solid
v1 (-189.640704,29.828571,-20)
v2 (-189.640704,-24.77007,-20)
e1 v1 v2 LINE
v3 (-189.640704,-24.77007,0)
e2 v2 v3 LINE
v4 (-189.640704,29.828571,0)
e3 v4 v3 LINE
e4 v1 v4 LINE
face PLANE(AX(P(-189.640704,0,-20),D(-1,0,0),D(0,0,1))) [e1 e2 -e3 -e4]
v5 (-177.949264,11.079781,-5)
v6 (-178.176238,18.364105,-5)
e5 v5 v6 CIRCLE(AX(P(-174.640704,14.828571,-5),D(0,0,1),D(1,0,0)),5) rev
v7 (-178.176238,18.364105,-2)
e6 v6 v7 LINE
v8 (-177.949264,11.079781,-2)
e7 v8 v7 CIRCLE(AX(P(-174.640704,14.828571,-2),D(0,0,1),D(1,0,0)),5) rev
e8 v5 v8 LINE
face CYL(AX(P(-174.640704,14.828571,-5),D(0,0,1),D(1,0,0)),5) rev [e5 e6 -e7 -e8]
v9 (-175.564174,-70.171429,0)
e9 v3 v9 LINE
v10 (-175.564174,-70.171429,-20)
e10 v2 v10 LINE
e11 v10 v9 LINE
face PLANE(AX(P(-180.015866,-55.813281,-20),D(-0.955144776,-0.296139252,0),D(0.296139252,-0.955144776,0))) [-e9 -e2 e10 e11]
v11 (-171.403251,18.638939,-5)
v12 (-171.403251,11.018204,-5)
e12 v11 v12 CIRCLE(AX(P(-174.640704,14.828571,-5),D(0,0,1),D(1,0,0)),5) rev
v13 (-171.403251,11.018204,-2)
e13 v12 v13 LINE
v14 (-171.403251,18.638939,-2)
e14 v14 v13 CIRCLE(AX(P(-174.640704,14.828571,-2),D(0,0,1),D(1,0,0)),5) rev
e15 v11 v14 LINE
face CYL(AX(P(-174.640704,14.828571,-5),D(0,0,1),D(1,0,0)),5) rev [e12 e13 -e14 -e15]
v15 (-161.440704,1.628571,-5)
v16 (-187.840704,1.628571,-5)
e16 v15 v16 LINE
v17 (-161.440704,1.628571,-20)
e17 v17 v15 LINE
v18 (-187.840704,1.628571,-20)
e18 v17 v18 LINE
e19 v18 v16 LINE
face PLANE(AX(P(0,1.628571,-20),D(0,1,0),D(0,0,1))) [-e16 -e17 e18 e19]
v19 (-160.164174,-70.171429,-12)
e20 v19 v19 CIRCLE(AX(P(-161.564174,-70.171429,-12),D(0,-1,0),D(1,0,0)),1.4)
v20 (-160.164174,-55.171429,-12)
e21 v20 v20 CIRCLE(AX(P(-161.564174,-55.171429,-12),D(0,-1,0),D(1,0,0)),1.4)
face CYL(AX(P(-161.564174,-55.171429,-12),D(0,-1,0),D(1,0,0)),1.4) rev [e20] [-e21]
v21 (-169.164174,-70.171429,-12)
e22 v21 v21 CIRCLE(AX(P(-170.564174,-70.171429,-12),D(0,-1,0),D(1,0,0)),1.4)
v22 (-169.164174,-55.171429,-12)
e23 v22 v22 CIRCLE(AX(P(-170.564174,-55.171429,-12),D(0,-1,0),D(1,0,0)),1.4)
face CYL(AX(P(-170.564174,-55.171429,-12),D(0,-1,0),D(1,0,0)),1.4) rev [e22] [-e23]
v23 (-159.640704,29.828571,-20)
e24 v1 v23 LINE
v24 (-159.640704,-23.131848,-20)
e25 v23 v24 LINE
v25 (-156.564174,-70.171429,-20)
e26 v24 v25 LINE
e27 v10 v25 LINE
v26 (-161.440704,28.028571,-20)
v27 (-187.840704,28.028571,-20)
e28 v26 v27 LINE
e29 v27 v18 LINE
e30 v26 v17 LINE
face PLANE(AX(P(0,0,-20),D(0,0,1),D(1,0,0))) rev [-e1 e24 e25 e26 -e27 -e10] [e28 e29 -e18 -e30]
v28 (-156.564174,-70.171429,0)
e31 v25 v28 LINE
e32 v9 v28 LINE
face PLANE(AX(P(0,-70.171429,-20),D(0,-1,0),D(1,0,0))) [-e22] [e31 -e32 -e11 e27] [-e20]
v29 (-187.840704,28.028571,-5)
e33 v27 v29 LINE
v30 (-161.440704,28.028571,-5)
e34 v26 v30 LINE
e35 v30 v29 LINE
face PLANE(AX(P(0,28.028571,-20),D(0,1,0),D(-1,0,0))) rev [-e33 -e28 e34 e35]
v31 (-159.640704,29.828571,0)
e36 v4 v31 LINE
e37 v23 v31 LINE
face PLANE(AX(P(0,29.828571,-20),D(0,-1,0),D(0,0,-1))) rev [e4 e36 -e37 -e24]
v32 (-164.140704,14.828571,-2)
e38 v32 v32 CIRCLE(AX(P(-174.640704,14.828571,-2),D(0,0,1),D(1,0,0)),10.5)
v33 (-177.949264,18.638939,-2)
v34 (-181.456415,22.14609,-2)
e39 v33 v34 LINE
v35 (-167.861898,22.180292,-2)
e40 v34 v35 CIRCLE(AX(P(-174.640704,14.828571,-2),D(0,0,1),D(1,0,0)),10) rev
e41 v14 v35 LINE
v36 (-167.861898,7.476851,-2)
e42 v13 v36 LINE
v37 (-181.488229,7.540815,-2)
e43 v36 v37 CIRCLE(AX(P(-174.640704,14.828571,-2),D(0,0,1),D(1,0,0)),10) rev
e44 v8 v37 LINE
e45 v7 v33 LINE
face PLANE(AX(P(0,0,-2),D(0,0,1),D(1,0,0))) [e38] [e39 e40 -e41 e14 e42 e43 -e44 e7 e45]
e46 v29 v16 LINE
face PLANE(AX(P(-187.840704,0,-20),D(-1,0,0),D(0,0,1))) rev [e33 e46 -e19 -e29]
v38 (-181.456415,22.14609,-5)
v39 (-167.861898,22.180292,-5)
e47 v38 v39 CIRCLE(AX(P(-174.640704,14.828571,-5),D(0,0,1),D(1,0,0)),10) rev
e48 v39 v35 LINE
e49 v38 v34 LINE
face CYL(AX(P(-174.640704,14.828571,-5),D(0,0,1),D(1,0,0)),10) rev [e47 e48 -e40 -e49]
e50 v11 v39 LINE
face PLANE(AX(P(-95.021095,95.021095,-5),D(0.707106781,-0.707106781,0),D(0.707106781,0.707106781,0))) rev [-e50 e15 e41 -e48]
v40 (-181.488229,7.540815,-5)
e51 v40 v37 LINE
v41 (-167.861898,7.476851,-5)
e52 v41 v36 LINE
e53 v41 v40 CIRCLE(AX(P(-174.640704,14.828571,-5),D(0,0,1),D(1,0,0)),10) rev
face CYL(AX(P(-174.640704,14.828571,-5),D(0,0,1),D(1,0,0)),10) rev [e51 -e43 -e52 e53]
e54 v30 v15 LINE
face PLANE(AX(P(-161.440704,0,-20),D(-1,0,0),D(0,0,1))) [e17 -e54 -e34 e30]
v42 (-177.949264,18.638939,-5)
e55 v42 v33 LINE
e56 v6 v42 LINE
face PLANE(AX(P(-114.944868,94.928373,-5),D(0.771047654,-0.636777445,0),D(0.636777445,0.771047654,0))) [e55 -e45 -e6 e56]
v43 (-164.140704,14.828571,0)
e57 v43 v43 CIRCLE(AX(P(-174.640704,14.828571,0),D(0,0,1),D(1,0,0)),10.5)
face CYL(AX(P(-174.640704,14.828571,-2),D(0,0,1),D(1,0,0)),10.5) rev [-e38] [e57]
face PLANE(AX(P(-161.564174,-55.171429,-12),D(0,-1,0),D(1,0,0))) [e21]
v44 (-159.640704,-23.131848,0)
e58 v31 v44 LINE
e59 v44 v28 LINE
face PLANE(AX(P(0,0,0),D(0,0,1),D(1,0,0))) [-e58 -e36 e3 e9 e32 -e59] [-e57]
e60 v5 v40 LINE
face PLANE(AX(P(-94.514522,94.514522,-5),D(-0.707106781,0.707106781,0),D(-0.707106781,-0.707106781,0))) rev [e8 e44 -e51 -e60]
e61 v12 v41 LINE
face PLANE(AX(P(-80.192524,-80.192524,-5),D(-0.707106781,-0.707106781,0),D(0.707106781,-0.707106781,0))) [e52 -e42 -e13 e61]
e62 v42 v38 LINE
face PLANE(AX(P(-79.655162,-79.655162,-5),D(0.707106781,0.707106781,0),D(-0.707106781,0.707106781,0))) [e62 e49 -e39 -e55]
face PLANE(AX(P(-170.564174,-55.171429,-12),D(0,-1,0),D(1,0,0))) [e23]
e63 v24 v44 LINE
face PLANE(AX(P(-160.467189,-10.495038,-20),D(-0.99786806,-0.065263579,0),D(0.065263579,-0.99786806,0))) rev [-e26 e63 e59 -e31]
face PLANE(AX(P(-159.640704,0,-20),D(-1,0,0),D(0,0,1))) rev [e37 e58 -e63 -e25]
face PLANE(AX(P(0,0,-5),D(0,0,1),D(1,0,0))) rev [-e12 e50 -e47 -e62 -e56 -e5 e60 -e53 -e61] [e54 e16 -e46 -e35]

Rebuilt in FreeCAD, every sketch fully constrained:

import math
import FreeCAD as App
import Part
import Sketcher

doc = App.newDocument("Part")
body = doc.addObject("PartDesign::Body", "Body")

sketch1 = body.newObject("Sketcher::SketchObject", "Sketch")
sketch1.AttachmentSupport = (doc.getObject("XY_Plane"), [""])
sketch1.MapMode = "FlatFace"
sketch1.addGeometry([
    Part.LineSegment(App.Vector(-190, -25, 0), App.Vector(-176, -70, 0)),
    Part.LineSegment(App.Vector(-176, -70, 0), App.Vector(-157, -70, 0)),
    Part.LineSegment(App.Vector(-157, -70, 0), App.Vector(-160, -23, 0)),
    Part.LineSegment(App.Vector(-160, -23, 0), App.Vector(-160, 30, 0)),
    Part.LineSegment(App.Vector(-160, 30, 0), App.Vector(-190, 30, 0)),
    Part.LineSegment(App.Vector(-190, 30, 0), App.Vector(-190, -25, 0)),
    Part.LineSegment(App.Vector(-188, 2, 0), App.Vector(-188, 28, 0)),
    Part.LineSegment(App.Vector(-188, 28, 0), App.Vector(-161, 28, 0)),
    Part.LineSegment(App.Vector(-161, 28, 0), App.Vector(-161, 2, 0)),
    Part.LineSegment(App.Vector(-161, 2, 0), App.Vector(-188, 2, 0)),
], False)
sketch1.addConstraint([
    Sketcher.Constraint("Coincident", 0, 2, 1, 1),
    Sketcher.Constraint("Coincident", 1, 2, 2, 1),
    Sketcher.Constraint("Coincident", 2, 2, 3, 1),
    Sketcher.Constraint("Coincident", 3, 2, 4, 1),
    Sketcher.Constraint("Coincident", 4, 2, 5, 1),
    Sketcher.Constraint("Coincident", 5, 2, 0, 1),
    Sketcher.Constraint("Coincident", 6, 2, 7, 1),
    Sketcher.Constraint("Coincident", 7, 2, 8, 1),
    Sketcher.Constraint("Coincident", 8, 2, 9, 1),
    Sketcher.Constraint("Coincident", 9, 2, 6, 1),
    Sketcher.Constraint("Horizontal", 1),
    Sketcher.Constraint("Vertical", 3),
    Sketcher.Constraint("Horizontal", 4),
    Sketcher.Constraint("Vertical", 5),
    Sketcher.Constraint("Vertical", 6),
    Sketcher.Constraint("Horizontal", 7),
    Sketcher.Constraint("Vertical", 8),
    Sketcher.Constraint("Horizontal", 9),
    Sketcher.Constraint("Equal", 9, 6),
    Sketcher.Constraint("DistanceX", 1, 1, 1, 2, 19.0),
    Sketcher.Constraint("DistanceX", 4, 2, 4, 1, 30.0),
    Sketcher.Constraint("DistanceX", 7, 1, 7, 2, 26.4),
    Sketcher.Constraint("DistanceY", 1, 2, 3, 2, 100.0),
    Sketcher.Constraint("DistanceX", 4, 2, 6, 2, 1.8),
    Sketcher.Constraint("DistanceY", 6, 2, 4, 2, 1.8),
    Sketcher.Constraint("DistanceY", 3, 1, 3, 2, 52.960419),
    Sketcher.Constraint("DistanceY", 5, 2, 5, 1, 54.598641),
    Sketcher.Constraint("Distance", 2, 47.140081),
    Sketcher.Constraint("DistanceY", 0, 2, -1, 1, 70.171429),
    Sketcher.Constraint("DistanceX", 0, 2, -1, 1, 175.564174),
])
pad1 = body.newObject("PartDesign::Pad", "Pad")
pad1.Profile = sketch1
pad1.Length = 20
pad1.Reversed = True

sketch2 = body.newObject("Sketcher::SketchObject", "Sketch001")
sketch2.AttachmentSupport = (doc.getObject("XY_Plane"), [""])
sketch2.MapMode = "FlatFace"
sketch2.addGeometry([
    Part.LineSegment(App.Vector(-187.84, 28.03, 0), App.Vector(-187.84, 1.63, 0)),
    Part.LineSegment(App.Vector(-187.84, 1.63, 0), App.Vector(-161.44, 1.63, 0)),
    Part.LineSegment(App.Vector(-161.44, 1.63, 0), App.Vector(-161.44, 28.03, 0)),
    Part.LineSegment(App.Vector(-161.44, 28.03, 0), App.Vector(-187.84, 28.03, 0)),
    Part.LineSegment(App.Vector(-171.4, 11.02, 0), App.Vector(-167.86, 7.48, 0)),
    Part.ArcOfCircle(Part.Circle(App.Vector(-174.64, 14.83, 0), App.Vector(0, 0, 1), 10), math.radians(-133), math.radians(-47)),
    Part.LineSegment(App.Vector(-181.49, 7.54, 0), App.Vector(-177.95, 11.08, 0)),
    Part.ArcOfCircle(Part.Circle(App.Vector(-174.64, 14.83, 0), App.Vector(0, 0, 1), 5), math.radians(135), math.radians(229)),
    Part.LineSegment(App.Vector(-178.18, 18.36, 0), App.Vector(-177.95, 18.64, 0)),
    Part.LineSegment(App.Vector(-177.95, 18.64, 0), App.Vector(-181.46, 22.15, 0)),
    Part.ArcOfCircle(Part.Circle(App.Vector(-174.64, 14.83, 0), App.Vector(0, 0, 1), 10), math.radians(47), math.radians(133)),
    Part.LineSegment(App.Vector(-167.86, 22.18, 0), App.Vector(-171.4, 18.64, 0)),
    Part.ArcOfCircle(Part.Circle(App.Vector(-174.64, 14.83, 0), App.Vector(0, 0, 1), 5), math.radians(-50), math.radians(50)),
], False)
sketch2.addConstraint([
    Sketcher.Constraint("Coincident", 0, 2, 1, 1),
    Sketcher.Constraint("Coincident", 1, 2, 2, 1),
    Sketcher.Constraint("Coincident", 2, 2, 3, 1),
    Sketcher.Constraint("Coincident", 3, 2, 0, 1),
    Sketcher.Constraint("Coincident", 4, 2, 5, 2),
    Sketcher.Constraint("Coincident", 5, 1, 6, 1),
    Sketcher.Constraint("Coincident", 6, 2, 7, 2),
    Sketcher.Constraint("Coincident", 7, 1, 8, 1),
    Sketcher.Constraint("Coincident", 8, 2, 9, 1),
    Sketcher.Constraint("Coincident", 9, 2, 10, 2),
    Sketcher.Constraint("Coincident", 10, 1, 11, 1),
    Sketcher.Constraint("Coincident", 11, 2, 12, 2),
    Sketcher.Constraint("Coincident", 12, 1, 4, 1),
    Sketcher.Constraint("Vertical", 0),
    Sketcher.Constraint("Horizontal", 1),
    Sketcher.Constraint("Vertical", 2),
    Sketcher.Constraint("Horizontal", 3),
    Sketcher.Constraint("Coincident", 7, 3, 5, 3),
    Sketcher.Constraint("Coincident", 10, 3, 5, 3),
    Sketcher.Constraint("Coincident", 12, 3, 5, 3),
    Sketcher.Constraint("Equal", 5, 10),
    Sketcher.Constraint("Equal", 7, 12),
    Sketcher.Constraint("Perpendicular", 4, 6),
    Sketcher.Constraint("Perpendicular", 6, 9),
    Sketcher.Constraint("Perpendicular", 9, 11),
    Sketcher.Constraint("Horizontal", 8, 2, 11, 2),
    Sketcher.Constraint("Vertical", 6, 2, 8, 2),
    Sketcher.Constraint("Vertical", 4, 2, 10, 1),
    Sketcher.Constraint("Vertical", 11, 2, 12, 1),
    Sketcher.Constraint("Equal", 3, 0),
    Sketcher.Constraint("Radius", 5, 10.0),
    Sketcher.Constraint("Radius", 7, 5.0),
    Sketcher.Constraint("DistanceX", 1, 1, 1, 2, 26.4),
    Sketcher.Constraint("DistanceX", 0, 2, 10, 3, 13.2),
    Sketcher.Constraint("DistanceY", 0, 2, 10, 3, 13.2),
    Sketcher.Constraint("DistanceX", 4, 2, -1, 1, 167.861898),
    Sketcher.Constraint("Distance", 4, 5.008229),
    Sketcher.Constraint("Distance", 8, 0.356442),
    Sketcher.Constraint("Distance", 9, 4.959861),
    Sketcher.Constraint("DistanceY", -1, 1, 5, 3, 14.828571),
])
pad2 = body.newObject("PartDesign::Pad", "Pad001")
pad2.Profile = sketch2
pad2.Length = 5
pad2.Reversed = True

sketch3 = body.newObject("Sketcher::SketchObject", "Sketch002")
sketch3.AttachmentSupport = (doc.getObject("XY_Plane"), [""])
sketch3.MapMode = "FlatFace"
sketch3.addGeometry([
    Part.Circle(App.Vector(-174.64, 14.83, 0), App.Vector(0, 0, 1), 10.5),
    Part.ArcOfCircle(Part.Circle(App.Vector(-174.64, 14.83, 0), App.Vector(0, 0, 1), 5), math.radians(-50), math.radians(50)),
    Part.LineSegment(App.Vector(-171.4, 11.02, 0), App.Vector(-167.86, 7.48, 0)),
    Part.ArcOfCircle(Part.Circle(App.Vector(-174.64, 14.83, 0), App.Vector(0, 0, 1), 10), math.radians(-133), math.radians(-47)),
    Part.LineSegment(App.Vector(-181.49, 7.54, 0), App.Vector(-177.95, 11.08, 0)),
    Part.ArcOfCircle(Part.Circle(App.Vector(-174.64, 14.83, 0), App.Vector(0, 0, 1), 5), math.radians(135), math.radians(229)),
    Part.LineSegment(App.Vector(-178.18, 18.36, 0), App.Vector(-177.95, 18.64, 0)),
    Part.LineSegment(App.Vector(-177.95, 18.64, 0), App.Vector(-181.46, 22.15, 0)),
    Part.ArcOfCircle(Part.Circle(App.Vector(-174.64, 14.83, 0), App.Vector(0, 0, 1), 10), math.radians(47), math.radians(133)),
    Part.LineSegment(App.Vector(-167.86, 22.18, 0), App.Vector(-171.4, 18.64, 0)),
], False)
sketch3.addConstraint([
    Sketcher.Constraint("Coincident", 1, 1, 2, 1),
    Sketcher.Constraint("Coincident", 2, 2, 3, 2),
    Sketcher.Constraint("Coincident", 3, 1, 4, 1),
    Sketcher.Constraint("Coincident", 4, 2, 5, 2),
    Sketcher.Constraint("Coincident", 5, 1, 6, 1),
    Sketcher.Constraint("Coincident", 6, 2, 7, 1),
    Sketcher.Constraint("Coincident", 7, 2, 8, 2),
    Sketcher.Constraint("Coincident", 8, 1, 9, 1),
    Sketcher.Constraint("Coincident", 9, 2, 1, 2),
    Sketcher.Constraint("Coincident", 1, 3, 0, 3),
    Sketcher.Constraint("Coincident", 3, 3, 0, 3),
    Sketcher.Constraint("Coincident", 5, 3, 0, 3),
    Sketcher.Constraint("Coincident", 8, 3, 0, 3),
    Sketcher.Constraint("Equal", 1, 5),
    Sketcher.Constraint("Equal", 3, 8),
    Sketcher.Constraint("Perpendicular", 2, 4),
    Sketcher.Constraint("Perpendicular", 4, 7),
    Sketcher.Constraint("Perpendicular", 7, 9),
    Sketcher.Constraint("Horizontal", 6, 2, 9, 2),
    Sketcher.Constraint("Vertical", 4, 2, 6, 2),
    Sketcher.Constraint("Vertical", 2, 2, 8, 1),
    Sketcher.Constraint("Vertical", 1, 1, 9, 2),
    Sketcher.Constraint("Diameter", 0, 21.0),
    Sketcher.Constraint("Radius", 1, 5.0),
    Sketcher.Constraint("Radius", 3, 10.0),
    Sketcher.Constraint("DistanceX", 2, 2, -1, 1, 167.861898),
    Sketcher.Constraint("Distance", 2, 5.008229),
    Sketcher.Constraint("Distance", 6, 0.356442),
    Sketcher.Constraint("Distance", 7, 4.959861),
    Sketcher.Constraint("DistanceY", -1, 1, 0, 3, 14.828571),
])
pocket1 = body.newObject("PartDesign::Pocket", "Pocket")
pocket1.Profile = sketch3
pocket1.Length = 2

sketch4 = body.newObject("Sketcher::SketchObject", "Sketch003")
sketch4.AttachmentSupport = (doc.getObject("XZ_Plane"), [""])
sketch4.MapMode = "FlatFace"
sketch4.AttachmentOffset = App.Placement(App.Vector(0, 0, 70.171429), App.Rotation())
sketch4.addGeometry([
    Part.Circle(App.Vector(-161.6, -12, 0), App.Vector(0, 0, 1), 1.4),
    Part.Circle(App.Vector(-170.6, -12, 0), App.Vector(0, 0, 1), 1.4),
], False)
sketch4.addConstraint([
    Sketcher.Constraint("Equal", 0, 1),
    Sketcher.Constraint("Horizontal", 0, 3, 1, 3),
    Sketcher.Constraint("Diameter", 0, 2.8),
    Sketcher.Constraint("DistanceY", 0, 3, -1, 1, 12.0),
    Sketcher.Constraint("DistanceX", 1, 3, 0, 3, 9.0),
    Sketcher.Constraint("DistanceX", 0, 3, -1, 1, 161.564174),
])
pocket2 = body.newObject("PartDesign::Pocket", "Pocket001")
pocket2.Profile = sketch4
pocket2.Length = 15

doc.recompute()
